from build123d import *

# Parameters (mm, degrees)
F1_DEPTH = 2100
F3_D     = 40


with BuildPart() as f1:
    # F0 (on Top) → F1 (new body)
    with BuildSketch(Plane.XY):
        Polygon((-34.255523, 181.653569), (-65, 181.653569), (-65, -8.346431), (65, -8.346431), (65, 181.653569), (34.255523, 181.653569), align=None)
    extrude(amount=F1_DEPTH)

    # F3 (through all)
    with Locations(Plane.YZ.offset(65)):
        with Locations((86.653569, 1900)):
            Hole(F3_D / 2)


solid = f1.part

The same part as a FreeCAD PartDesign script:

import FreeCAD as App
import Part
import Sketcher
Q = App.Units.Quantity


def add_polygon(sketch, points):
    """Adds a closed chain of lines whose ends are joined by coincident constraints."""
    first, n = sketch.GeometryCount, len(points)
    for a, b in zip(points, points[1:] + points[:1]):
        sketch.addGeometry(Part.LineSegment(App.Vector(*a, 0), App.Vector(*b, 0)), False)
    for i in range(n):
        sketch.addConstraint(Sketcher.Constraint("Coincident", first + i, 2, first + (i + 1) % n, 1))

doc = App.newDocument("Part")
params = doc.addObject("Spreadsheet::Sheet", "Params")
for row, (alias, value) in enumerate([
    ("sketch1_width", "130 mm"),
    ("sketch1_height", "190 mm"),
    ("pad1_length", "2100 mm"),
    ("sketch2_diameter", "40 mm"),
    ("hole_diameter", "40 mm"),
], start=1):
    params.set(f"A{row}", alias)
    params.set(f"B{row}", "=" + value)
    params.setAlias(f"B{row}", alias)

body = doc.addObject("PartDesign::Body", "Body")

# Sketch on XY plane
sketch1 = body.newObject("Sketcher::SketchObject", "Sketch")
sketch1.AttachmentSupport = (doc.getObject("XY_Plane"), [""])
sketch1.MapMode = "FlatFace"
add_polygon(sketch1, [(-65, 182), (-65, -8), (65, -8), (65, 182)])  # lines 0-3
sketch1.addConstraint(Sketcher.Constraint("Vertical", 0))
sketch1.addConstraint(Sketcher.Constraint("Horizontal", 1))
sketch1.addConstraint(Sketcher.Constraint("Vertical", 2))
sketch1.addConstraint(Sketcher.Constraint("Horizontal", 3))
sketch1.addConstraint(Sketcher.Constraint("DistanceX", 1, 1, 1, 2, Q("130 mm")))
sketch1.addConstraint(Sketcher.Constraint("DistanceY", 0, 2, 0, 1, Q("190 mm")))
sketch1.addConstraint(Sketcher.Constraint("DistanceX", 0, 2, -1, 1, Q("65 mm")))
sketch1.addConstraint(Sketcher.Constraint("DistanceY", 0, 2, -1, 1, Q("8.346431 mm")))
sketch1.setExpression("Constraints[8]", "Params.sketch1_width")
sketch1.setExpression("Constraints[9]", "Params.sketch1_height")
pad1 = body.newObject("PartDesign::Pad", "Pad")
pad1.Profile = sketch1
pad1.setExpression("Length", "Params.pad1_length")

# Sketch on YZ plane
sketch2 = body.newObject("Sketcher::SketchObject", "Sketch001")
sketch2.AttachmentSupport = (doc.getObject("YZ_Plane"), [""])
sketch2.MapMode = "FlatFace"
sketch2.AttachmentOffset = App.Placement(App.Vector(0, 0, 65), App.Rotation())
sketch2.addGeometry(Part.Circle(App.Vector(87, 1900, 0), App.Vector(0, 0, 1), 20), False)
sketch2.addConstraint(Sketcher.Constraint("Diameter", 0, Q("40 mm")))
sketch2.addConstraint(Sketcher.Constraint("DistanceY", -1, 1, 0, 3, Q("1900 mm")))
sketch2.addConstraint(Sketcher.Constraint("DistanceX", -1, 1, 0, 3, Q("86.653569 mm")))
sketch2.setExpression("Constraints[0]", "Params.sketch2_diameter")
doc.recompute()
hole = body.newObject("PartDesign::Hole", "Hole")
hole.Profile = sketch2
hole.ThreadType = "None"
hole.setExpression("Diameter", "Params.hole_diameter")
hole.DepthType = "ThroughAll"

doc.recompute()
